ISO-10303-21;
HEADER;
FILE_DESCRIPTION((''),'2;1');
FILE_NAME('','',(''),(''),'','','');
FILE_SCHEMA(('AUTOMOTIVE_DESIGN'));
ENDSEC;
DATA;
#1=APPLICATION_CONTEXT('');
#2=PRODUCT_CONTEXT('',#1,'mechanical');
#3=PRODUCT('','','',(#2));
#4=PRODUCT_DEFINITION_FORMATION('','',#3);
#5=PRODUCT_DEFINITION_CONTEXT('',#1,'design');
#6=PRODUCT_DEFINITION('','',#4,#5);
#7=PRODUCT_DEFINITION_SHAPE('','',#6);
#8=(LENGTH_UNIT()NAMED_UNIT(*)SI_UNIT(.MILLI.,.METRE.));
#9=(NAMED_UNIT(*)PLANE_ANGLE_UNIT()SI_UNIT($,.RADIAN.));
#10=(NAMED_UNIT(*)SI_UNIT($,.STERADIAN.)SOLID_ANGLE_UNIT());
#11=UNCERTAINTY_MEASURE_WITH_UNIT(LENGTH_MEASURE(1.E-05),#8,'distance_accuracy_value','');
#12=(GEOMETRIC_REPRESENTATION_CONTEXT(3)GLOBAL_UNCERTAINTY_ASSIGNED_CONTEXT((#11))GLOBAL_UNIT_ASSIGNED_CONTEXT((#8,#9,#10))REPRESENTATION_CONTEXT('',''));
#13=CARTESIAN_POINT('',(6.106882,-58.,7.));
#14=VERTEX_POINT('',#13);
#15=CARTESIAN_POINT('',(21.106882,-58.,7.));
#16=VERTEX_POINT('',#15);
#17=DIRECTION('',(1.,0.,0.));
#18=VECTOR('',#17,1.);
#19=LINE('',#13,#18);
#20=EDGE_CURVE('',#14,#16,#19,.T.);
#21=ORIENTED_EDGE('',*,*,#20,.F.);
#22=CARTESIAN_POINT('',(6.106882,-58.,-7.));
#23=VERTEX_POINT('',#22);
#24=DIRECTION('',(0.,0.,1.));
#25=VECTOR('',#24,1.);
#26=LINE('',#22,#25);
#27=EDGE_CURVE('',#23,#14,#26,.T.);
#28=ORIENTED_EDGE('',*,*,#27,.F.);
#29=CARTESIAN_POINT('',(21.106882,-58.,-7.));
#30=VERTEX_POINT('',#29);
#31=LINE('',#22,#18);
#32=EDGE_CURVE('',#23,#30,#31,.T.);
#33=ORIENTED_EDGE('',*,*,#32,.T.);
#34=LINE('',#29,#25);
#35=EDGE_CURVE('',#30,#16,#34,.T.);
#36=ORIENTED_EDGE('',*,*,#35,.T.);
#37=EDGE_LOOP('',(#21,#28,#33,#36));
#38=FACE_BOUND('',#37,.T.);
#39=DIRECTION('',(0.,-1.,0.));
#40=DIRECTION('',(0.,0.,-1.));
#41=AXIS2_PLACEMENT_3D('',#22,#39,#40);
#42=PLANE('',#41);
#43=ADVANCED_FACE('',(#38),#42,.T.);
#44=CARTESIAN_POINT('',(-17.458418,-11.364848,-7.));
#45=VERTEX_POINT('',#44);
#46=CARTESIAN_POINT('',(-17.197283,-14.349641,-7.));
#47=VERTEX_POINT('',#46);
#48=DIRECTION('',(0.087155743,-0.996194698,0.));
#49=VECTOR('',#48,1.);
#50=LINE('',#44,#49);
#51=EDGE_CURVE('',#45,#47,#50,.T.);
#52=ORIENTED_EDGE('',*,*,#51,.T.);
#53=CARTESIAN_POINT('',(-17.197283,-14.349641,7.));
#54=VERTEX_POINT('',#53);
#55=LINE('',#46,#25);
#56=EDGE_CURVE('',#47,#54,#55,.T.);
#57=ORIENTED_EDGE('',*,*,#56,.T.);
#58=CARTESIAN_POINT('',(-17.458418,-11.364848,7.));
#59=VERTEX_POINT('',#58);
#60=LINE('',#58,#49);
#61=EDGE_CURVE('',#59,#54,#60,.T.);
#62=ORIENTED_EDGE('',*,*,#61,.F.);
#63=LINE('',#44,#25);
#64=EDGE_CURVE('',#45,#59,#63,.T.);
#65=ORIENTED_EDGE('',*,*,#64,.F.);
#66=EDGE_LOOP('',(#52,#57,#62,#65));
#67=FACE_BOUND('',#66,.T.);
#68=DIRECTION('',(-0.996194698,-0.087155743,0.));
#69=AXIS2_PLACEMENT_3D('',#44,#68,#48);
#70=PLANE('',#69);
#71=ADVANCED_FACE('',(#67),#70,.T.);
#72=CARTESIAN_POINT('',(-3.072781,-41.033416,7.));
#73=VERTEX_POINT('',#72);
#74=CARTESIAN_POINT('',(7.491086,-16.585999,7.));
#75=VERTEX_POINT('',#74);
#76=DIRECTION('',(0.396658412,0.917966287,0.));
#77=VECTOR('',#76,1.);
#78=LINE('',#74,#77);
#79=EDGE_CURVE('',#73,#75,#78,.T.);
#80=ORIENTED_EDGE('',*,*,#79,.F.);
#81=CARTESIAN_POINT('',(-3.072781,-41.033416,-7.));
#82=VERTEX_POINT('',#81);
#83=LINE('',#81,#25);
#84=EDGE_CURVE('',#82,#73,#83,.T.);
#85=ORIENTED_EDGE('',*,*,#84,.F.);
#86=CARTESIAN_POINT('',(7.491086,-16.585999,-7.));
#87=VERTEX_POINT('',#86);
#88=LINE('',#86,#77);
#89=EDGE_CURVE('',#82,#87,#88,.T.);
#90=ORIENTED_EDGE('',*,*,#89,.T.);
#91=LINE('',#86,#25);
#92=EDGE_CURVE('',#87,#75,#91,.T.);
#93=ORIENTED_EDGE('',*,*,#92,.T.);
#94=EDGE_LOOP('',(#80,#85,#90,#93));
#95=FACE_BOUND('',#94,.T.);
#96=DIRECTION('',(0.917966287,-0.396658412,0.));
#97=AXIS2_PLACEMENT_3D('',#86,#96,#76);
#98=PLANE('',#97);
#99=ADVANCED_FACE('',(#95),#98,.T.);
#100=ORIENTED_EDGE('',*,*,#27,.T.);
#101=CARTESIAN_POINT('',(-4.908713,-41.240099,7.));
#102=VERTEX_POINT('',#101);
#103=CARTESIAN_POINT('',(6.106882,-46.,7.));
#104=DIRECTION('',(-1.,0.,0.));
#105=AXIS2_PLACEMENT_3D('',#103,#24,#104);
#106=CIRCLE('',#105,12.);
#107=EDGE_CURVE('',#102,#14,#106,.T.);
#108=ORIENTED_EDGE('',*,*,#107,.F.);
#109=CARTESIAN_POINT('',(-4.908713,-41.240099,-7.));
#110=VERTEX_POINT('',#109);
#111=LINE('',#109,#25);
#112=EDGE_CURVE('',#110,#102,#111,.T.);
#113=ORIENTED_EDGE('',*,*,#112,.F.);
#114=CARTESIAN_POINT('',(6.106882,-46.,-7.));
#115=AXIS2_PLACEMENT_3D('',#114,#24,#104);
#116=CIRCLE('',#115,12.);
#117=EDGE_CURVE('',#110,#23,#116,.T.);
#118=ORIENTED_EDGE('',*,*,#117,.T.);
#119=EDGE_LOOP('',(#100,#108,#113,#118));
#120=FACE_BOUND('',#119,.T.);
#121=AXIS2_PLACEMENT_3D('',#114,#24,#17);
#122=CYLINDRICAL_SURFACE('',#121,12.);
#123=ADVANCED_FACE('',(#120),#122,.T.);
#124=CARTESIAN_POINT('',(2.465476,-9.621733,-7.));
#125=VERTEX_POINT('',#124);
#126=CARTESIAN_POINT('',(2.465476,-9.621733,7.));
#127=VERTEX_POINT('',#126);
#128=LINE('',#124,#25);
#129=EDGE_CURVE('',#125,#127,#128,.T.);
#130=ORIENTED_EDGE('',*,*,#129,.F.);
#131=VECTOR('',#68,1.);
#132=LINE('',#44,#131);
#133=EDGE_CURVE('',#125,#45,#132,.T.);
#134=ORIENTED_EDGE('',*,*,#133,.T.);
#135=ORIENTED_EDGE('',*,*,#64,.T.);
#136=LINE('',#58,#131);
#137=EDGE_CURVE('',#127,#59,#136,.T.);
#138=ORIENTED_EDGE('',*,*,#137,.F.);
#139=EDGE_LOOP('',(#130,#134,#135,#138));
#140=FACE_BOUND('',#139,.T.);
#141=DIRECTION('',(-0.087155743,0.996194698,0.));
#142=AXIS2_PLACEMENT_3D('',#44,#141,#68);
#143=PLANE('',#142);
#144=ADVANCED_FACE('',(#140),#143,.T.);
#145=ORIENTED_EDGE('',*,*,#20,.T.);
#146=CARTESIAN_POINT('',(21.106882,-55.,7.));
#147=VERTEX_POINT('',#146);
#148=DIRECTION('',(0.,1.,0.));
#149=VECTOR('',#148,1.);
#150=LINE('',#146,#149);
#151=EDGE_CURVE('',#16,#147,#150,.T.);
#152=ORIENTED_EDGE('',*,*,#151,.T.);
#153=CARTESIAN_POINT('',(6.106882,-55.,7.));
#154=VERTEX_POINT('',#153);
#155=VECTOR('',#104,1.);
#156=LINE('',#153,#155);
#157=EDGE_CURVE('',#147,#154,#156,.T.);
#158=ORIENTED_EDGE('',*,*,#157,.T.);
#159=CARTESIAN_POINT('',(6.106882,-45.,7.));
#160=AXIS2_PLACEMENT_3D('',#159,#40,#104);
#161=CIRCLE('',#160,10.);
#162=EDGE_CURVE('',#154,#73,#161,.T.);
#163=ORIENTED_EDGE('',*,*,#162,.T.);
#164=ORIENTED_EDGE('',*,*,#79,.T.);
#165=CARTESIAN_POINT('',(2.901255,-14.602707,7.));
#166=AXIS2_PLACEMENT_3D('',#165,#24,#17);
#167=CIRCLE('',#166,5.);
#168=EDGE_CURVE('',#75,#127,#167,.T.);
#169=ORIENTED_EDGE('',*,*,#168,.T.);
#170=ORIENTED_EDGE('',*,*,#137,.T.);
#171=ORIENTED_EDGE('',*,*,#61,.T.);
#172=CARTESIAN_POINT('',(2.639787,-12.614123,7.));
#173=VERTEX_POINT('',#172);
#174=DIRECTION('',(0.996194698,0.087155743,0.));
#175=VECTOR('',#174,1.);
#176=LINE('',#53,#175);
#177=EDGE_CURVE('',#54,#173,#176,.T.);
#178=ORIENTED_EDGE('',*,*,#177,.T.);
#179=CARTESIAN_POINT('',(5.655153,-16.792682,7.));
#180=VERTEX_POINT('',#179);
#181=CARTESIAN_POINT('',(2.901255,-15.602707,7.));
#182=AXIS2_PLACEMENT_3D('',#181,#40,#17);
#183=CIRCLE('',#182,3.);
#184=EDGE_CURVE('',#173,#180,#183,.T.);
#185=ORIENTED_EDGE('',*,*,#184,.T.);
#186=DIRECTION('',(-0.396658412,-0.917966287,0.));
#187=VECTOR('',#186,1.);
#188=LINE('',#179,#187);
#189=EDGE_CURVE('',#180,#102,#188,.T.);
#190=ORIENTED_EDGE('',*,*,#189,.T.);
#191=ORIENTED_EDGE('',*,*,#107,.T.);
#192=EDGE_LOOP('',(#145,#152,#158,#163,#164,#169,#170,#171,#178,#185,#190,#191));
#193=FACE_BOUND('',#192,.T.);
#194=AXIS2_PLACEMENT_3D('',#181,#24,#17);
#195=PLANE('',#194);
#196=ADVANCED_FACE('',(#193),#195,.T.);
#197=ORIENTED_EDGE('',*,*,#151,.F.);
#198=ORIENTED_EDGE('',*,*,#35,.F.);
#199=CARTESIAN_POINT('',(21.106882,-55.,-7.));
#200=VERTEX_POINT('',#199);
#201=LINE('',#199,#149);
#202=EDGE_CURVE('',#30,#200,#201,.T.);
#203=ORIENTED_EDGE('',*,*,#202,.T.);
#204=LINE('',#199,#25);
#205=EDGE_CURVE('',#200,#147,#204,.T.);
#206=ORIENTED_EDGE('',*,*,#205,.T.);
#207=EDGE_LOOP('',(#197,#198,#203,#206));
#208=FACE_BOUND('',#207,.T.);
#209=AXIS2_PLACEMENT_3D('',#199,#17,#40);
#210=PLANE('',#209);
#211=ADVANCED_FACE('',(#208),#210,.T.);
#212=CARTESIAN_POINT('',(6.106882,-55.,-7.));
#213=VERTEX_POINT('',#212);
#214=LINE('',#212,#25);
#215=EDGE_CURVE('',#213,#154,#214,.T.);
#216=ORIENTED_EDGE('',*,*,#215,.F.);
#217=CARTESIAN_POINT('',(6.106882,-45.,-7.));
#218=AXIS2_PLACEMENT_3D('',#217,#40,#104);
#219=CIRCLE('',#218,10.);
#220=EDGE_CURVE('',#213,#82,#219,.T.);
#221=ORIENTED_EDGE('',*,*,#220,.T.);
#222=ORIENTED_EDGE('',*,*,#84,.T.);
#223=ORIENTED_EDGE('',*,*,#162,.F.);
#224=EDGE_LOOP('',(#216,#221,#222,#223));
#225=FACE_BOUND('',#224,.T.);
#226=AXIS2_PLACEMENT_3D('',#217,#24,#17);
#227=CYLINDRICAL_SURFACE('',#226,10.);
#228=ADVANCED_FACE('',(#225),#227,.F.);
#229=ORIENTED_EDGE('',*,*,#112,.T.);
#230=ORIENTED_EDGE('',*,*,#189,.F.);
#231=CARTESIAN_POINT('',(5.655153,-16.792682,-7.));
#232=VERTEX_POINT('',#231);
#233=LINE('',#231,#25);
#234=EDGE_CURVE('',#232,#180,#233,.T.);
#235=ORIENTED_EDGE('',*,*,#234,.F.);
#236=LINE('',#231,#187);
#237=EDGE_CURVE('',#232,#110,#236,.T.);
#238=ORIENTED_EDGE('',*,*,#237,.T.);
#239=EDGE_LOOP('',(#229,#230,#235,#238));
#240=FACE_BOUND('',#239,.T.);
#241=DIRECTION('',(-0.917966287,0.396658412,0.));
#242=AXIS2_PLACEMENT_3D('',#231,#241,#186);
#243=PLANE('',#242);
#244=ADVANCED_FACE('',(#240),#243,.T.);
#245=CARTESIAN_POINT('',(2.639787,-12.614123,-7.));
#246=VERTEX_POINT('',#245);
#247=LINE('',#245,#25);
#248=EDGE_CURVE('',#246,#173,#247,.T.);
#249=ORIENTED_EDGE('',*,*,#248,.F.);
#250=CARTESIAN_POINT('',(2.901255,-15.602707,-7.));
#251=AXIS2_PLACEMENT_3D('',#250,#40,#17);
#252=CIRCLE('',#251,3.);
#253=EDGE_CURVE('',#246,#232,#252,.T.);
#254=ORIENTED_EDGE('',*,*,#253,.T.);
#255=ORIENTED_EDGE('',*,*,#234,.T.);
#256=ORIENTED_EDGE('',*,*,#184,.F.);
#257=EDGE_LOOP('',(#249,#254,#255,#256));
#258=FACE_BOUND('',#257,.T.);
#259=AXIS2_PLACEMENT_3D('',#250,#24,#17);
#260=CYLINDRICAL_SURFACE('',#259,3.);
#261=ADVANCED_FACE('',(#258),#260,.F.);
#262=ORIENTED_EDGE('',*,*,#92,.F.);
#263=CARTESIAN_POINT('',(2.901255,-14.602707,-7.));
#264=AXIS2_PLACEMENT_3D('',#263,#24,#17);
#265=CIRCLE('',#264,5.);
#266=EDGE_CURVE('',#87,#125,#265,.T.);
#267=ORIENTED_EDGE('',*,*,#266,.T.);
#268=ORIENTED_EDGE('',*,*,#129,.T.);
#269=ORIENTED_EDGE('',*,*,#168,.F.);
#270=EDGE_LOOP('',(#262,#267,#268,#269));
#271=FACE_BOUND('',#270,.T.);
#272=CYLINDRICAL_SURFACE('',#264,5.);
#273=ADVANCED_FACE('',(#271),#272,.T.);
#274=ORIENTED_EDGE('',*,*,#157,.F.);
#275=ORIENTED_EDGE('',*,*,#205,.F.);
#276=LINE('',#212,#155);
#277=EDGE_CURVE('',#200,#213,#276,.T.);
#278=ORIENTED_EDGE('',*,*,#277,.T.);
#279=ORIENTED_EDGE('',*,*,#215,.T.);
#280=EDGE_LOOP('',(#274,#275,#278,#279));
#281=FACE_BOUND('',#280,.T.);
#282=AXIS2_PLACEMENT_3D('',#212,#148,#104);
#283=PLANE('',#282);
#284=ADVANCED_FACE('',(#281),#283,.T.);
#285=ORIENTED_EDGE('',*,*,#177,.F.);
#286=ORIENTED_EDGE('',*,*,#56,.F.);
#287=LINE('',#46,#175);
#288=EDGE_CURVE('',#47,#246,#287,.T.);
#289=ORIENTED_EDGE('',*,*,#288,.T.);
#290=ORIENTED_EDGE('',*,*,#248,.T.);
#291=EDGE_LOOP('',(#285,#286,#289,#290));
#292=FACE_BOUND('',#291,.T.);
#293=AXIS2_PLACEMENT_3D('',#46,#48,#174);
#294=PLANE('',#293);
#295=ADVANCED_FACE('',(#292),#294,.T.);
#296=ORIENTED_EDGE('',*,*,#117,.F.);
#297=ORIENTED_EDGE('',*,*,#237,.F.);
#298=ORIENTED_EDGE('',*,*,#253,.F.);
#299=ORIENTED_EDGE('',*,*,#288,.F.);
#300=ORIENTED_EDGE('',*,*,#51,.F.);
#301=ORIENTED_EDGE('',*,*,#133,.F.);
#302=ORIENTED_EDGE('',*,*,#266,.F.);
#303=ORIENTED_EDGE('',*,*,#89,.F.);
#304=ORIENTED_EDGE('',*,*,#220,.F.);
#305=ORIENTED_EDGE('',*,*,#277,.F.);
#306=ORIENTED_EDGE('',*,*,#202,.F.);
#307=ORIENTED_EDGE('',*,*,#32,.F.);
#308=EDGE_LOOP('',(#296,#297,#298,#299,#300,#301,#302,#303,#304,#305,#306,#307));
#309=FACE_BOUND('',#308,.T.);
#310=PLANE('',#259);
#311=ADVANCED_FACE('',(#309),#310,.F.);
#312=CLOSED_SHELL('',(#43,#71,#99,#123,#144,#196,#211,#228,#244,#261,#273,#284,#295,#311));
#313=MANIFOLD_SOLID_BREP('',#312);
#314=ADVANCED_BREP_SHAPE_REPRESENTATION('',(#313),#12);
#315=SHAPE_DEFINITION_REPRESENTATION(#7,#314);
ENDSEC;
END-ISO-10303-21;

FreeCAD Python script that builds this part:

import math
import FreeCAD as App
import Part
import Sketcher
from FreeCAD import Vector
Q = App.Units.Quantity

doc = App.newDocument("Part")
body = doc.addObject("PartDesign::Body", "Body")

# Sketch on XY plane
sketch1 = body.newObject("Sketcher::SketchObject", "Sketch")
sketch1.AttachmentSupport = (doc.getObject("XY_Plane"), [""])
sketch1.MapMode = "FlatFace"
sketch1.addGeometry([
    Part.LineSegment(Vector(2.5, -9.6, 0), Vector(-17.5, -11.4, 0)),  # 0
    Part.LineSegment(Vector(-17.5, -11.4, 0), Vector(-17.2, -14.3, 0)),  # 1
    Part.LineSegment(Vector(-17.2, -14.3, 0), Vector(2.6, -12.6, 0)),  # 2
    Part.ArcOfCircle(Part.Circle(Vector(2.9, -15.6, 0), Vector(0, 0, 1), 3), math.radians(-23), math.radians(95)),  # 3
    Part.LineSegment(Vector(5.7, -16.8, 0), Vector(-4.9, -41.2, 0)),  # 4
    Part.ArcOfCircle(Part.Circle(Vector(6.1, -46, 0), Vector(0, 0, 1), 12), math.radians(157), math.radians(270)),  # 5
    Part.LineSegment(Vector(6.1, -58, 0), Vector(21.1, -58, 0)),  # 6
    Part.LineSegment(Vector(21.1, -58, 0), Vector(21.1, -55, 0)),  # 7
    Part.LineSegment(Vector(21.1, -55, 0), Vector(6.1, -55, 0)),  # 8
    Part.ArcOfCircle(Part.Circle(Vector(6.1, -45, 0), Vector(0, 0, 1), 10), math.radians(157), math.radians(270)),  # 9
    Part.LineSegment(Vector(-3.1, -41, 0), Vector(7.5, -16.6, 0)),  # 10
    Part.ArcOfCircle(Part.Circle(Vector(2.9, -14.6, 0), Vector(0, 0, 1), 5), math.radians(-23), math.radians(95)),  # 11
], False)
sketch1.addConstraint([
    Sketcher.Constraint("Coincident", 0, 2, 1, 1),
    Sketcher.Constraint("Coincident", 1, 2, 2, 1),
    Sketcher.Constraint("Tangent", 2, 2, 3, 2),
    Sketcher.Constraint("Tangent", 3, 1, 4, 1),
    Sketcher.Constraint("Tangent", 4, 2, 5, 1),
    Sketcher.Constraint("Tangent", 5, 2, 6, 1),
    Sketcher.Constraint("Coincident", 6, 2, 7, 1),
    Sketcher.Constraint("Coincident", 7, 2, 8, 1),
    Sketcher.Constraint("Tangent", 8, 2, 9, 2),
    Sketcher.Constraint("Tangent", 9, 1, 10, 1),
    Sketcher.Constraint("Tangent", 10, 2, 11, 1),
    Sketcher.Constraint("Tangent", 11, 2, 0, 1),
    Sketcher.Constraint("Horizontal", 6),
    Sketcher.Constraint("Vertical", 7),
    Sketcher.Constraint("Horizontal", 8),
    Sketcher.Constraint("Perpendicular", 0, 1),
    Sketcher.Constraint("Perpendicular", 1, 2),
    Sketcher.Constraint("Parallel", 4, 10),
    Sketcher.Constraint("Vertical", 5, 3, 9, 3),
    Sketcher.Constraint("Vertical", 3, 3, 11, 3),
    Sketcher.Constraint("Equal", 4, 10),
    Sketcher.Constraint("Radius", 3, Q("3 mm")),
    Sketcher.Constraint("Radius", 5, Q("12 mm")),
    Sketcher.Constraint("Radius", 9, Q("10 mm")),
    Sketcher.Constraint("DistanceX", 6, 1, 6, 2, Q("15 mm")),
    Sketcher.Constraint("DistanceY", 7, 1, 7, 2, Q("3 mm")),
    Sketcher.Constraint("Angle", 0, Q("-175 deg")),
    Sketcher.Constraint("Distance", 0, Q("20 mm")),
    Sketcher.Constraint("DistanceY", 5, 3, -1, 1, Q("46 mm")),
    Sketcher.Constraint("DistanceY", 10, 2, -1, 1, Q("16.585999 mm")),
    Sketcher.Constraint("DistanceY", 4, 2, -1, 1, Q("41.240099 mm")),
    Sketcher.Constraint("DistanceX", -1, 1, 5, 3, Q("6.106882 mm")),
])
pad1 = body.newObject("PartDesign::Pad", "Pad")
pad1.Profile = sketch1
pad1.Type = "TwoLengths"
pad1.Length = 7
pad1.Length2 = 7

doc.recompute()
